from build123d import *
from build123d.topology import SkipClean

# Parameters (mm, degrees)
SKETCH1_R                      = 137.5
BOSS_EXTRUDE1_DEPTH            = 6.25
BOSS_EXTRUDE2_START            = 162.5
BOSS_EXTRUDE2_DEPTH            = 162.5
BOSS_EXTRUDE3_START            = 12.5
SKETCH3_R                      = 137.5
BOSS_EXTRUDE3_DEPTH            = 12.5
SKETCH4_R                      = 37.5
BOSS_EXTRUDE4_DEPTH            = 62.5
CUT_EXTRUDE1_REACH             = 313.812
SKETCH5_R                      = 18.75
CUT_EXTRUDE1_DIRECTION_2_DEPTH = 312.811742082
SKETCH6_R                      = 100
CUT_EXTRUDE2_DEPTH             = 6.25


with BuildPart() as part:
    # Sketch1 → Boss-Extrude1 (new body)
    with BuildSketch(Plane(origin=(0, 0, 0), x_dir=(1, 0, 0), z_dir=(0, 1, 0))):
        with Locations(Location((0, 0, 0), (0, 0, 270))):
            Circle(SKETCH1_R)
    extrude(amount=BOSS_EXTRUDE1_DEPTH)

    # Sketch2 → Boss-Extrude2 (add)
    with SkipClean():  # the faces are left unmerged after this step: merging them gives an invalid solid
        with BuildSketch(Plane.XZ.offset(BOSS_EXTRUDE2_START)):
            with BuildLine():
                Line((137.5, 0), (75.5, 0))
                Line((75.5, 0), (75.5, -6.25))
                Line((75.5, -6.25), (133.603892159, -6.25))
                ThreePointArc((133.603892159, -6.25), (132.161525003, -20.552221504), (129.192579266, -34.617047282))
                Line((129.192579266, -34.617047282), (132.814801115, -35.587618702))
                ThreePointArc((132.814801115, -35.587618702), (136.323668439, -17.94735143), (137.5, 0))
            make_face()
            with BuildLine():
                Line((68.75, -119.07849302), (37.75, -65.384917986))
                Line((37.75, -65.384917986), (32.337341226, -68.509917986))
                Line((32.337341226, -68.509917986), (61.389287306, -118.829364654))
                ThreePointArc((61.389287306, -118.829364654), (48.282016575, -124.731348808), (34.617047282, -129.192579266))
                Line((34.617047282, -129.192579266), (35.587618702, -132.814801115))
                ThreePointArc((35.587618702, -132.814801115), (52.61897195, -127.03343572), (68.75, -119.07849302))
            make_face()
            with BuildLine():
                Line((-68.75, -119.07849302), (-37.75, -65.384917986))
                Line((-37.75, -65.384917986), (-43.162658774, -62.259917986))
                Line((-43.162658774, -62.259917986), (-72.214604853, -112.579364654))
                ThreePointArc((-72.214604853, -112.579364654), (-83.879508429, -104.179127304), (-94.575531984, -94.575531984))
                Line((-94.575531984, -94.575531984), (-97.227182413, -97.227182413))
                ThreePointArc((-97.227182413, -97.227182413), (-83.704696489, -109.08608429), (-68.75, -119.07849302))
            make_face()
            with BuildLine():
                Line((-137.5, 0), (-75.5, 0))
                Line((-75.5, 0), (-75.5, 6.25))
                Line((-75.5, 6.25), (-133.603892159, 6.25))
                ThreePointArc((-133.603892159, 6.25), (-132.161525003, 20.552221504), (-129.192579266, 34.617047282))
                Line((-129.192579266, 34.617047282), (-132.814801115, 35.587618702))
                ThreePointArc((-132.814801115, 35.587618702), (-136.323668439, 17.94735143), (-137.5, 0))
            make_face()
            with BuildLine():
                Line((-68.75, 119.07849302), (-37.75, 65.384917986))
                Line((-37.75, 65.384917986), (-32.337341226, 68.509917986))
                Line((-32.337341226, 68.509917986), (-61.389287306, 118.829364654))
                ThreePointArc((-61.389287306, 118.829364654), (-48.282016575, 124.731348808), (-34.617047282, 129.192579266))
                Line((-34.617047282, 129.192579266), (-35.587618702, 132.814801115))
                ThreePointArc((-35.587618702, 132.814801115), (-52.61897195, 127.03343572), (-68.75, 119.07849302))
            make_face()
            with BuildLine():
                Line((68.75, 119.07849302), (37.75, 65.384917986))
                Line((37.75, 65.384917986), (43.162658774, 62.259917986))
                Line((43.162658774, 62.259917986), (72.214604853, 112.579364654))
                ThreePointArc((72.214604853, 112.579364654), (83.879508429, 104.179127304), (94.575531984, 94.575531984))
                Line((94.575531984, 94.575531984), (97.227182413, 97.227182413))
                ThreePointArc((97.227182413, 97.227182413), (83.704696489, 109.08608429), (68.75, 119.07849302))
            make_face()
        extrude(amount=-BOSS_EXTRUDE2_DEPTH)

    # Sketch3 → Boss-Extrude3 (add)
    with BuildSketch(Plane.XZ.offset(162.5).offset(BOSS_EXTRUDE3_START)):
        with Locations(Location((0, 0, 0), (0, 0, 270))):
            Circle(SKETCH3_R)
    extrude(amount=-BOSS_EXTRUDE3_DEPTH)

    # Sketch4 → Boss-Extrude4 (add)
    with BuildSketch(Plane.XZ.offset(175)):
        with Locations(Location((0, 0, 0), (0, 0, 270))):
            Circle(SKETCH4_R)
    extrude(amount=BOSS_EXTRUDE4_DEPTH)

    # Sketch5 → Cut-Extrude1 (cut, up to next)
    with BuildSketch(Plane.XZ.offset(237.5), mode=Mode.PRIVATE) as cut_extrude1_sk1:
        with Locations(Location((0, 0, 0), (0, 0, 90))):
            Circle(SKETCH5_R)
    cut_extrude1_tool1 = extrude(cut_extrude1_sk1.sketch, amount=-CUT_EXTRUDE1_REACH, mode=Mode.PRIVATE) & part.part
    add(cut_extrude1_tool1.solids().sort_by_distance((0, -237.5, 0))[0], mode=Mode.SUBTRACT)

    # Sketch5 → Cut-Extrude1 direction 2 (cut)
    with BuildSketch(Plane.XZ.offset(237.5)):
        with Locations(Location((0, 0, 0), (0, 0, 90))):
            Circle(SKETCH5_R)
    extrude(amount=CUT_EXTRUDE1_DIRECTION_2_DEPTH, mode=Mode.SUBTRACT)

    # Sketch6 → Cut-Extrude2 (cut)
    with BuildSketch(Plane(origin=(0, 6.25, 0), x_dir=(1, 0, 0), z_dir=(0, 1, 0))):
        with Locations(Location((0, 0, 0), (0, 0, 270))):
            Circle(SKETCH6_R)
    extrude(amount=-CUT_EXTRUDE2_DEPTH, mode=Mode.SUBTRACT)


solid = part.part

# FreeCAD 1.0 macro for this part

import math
import FreeCAD as App
import Part
import Sketcher
Q = App.Units.Quantity

doc = App.newDocument("Part")
body = doc.addObject("PartDesign::Body", "Body")

# Sketch on XZ plane
sketch1 = body.newObject("Sketcher::SketchObject", "Sketch")
sketch1.AttachmentSupport = (doc.getObject("XZ_Plane"), [""])
sketch1.MapMode = "FlatFace"
sketch1.addGeometry(Part.Circle(App.Vector(0, 0, 0), App.Vector(0, 0, 1), 137.5), False)
sketch1.addConstraint(Sketcher.Constraint("Coincident", 0, 3, -1, 1))
sketch1.addConstraint(Sketcher.Constraint("Diameter", 0, 275.0))
pad1 = body.newObject("PartDesign::Pad", "Pad")
pad1.Profile = sketch1
pad1.Length = 6.25
pad1.Reversed = True

# Sketch on XZ plane
sketch2 = body.newObject("Sketcher::SketchObject", "Sketch001")
sketch2.AttachmentSupport = (doc.getObject("XZ_Plane"), [""])
sketch2.MapMode = "FlatFace"
sketch2.AttachmentOffset = App.Placement(App.Vector(0, 0, 162.5), App.Rotation())
sketch2.addGeometry(Part.LineSegment(App.Vector(137.5, 0, 0), App.Vector(75.5, 0, 0)), False)
sketch2.addGeometry(Part.LineSegment(App.Vector(75.5, 0, 0), App.Vector(75.5, -6.25, 0)), False)
sketch2.addGeometry(Part.LineSegment(App.Vector(75.5, -6.25, 0), App.Vector(133.603892, -6.25, 0)), False)
sketch2.addGeometry(Part.ArcOfCircle(Part.Circle(App.Vector(0, 0, 0), App.Vector(0, 0, 1), 133.75), math.radians(-15), math.radians(-2.678348)), False)
sketch2.addGeometry(Part.LineSegment(App.Vector(129.192579, -34.617047, 0), App.Vector(132.814801, -35.587619, 0)), False)
sketch2.addGeometry(Part.ArcOfCircle(Part.Circle(App.Vector(0, 0, 0), App.Vector(0, 0, 1), 137.5), math.radians(-15), math.radians(0)), False)
sketch2.addGeometry(Part.LineSegment(App.Vector(68.75, -119.078493, 0), App.Vector(37.75, -65.384918, 0)), False)
sketch2.addGeometry(Part.LineSegment(App.Vector(37.75, -65.384918, 0), App.Vector(32.337341, -68.509918, 0)), False)
sketch2.addGeometry(Part.LineSegment(App.Vector(32.337341, -68.509918, 0), App.Vector(61.389287, -118.829365, 0)), False)
sketch2.addGeometry(Part.ArcOfCircle(Part.Circle(App.Vector(0, 0, 0), App.Vector(0, 0, 1), 133.75), math.radians(-75), math.radians(-62.678348)), False)
sketch2.addGeometry(Part.LineSegment(App.Vector(34.617047, -129.192579, 0), App.Vector(35.587619, -132.814801, 0)), False)
sketch2.addGeometry(Part.ArcOfCircle(Part.Circle(App.Vector(0, 0, 0), App.Vector(0, 0, 1), 137.5), math.radians(-75), math.radians(-60)), False)
sketch2.addGeometry(Part.LineSegment(App.Vector(-68.75, -119.078493, 0), App.Vector(-37.75, -65.384918, 0)), False)
sketch2.addGeometry(Part.LineSegment(App.Vector(-37.75, -65.384918, 0), App.Vector(-43.162659, -62.259918, 0)), False)
sketch2.addGeometry(Part.LineSegment(App.Vector(-43.162659, -62.259918, 0), App.Vector(-72.214605, -112.579365, 0)), False)
sketch2.addGeometry(Part.ArcOfCircle(Part.Circle(App.Vector(0, 0, 0), App.Vector(0, 0, 1), 133.75), math.radians(-135), math.radians(-122.678348)), False)
sketch2.addGeometry(Part.LineSegment(App.Vector(-94.575532, -94.575532, 0), App.Vector(-97.227182, -97.227182, 0)), False)
sketch2.addGeometry(Part.ArcOfCircle(Part.Circle(App.Vector(0, 0, 0), App.Vector(0, 0, 1), 137.5), math.radians(-135), math.radians(-120)), False)
sketch2.addGeometry(Part.LineSegment(App.Vector(-137.5, 0, 0), App.Vector(-75.5, 0, 0)), False)
sketch2.addGeometry(Part.LineSegment(App.Vector(-75.5, 0, 0), App.Vector(-75.5, 6.25, 0)), False)
sketch2.addGeometry(Part.LineSegment(App.Vector(-75.5, 6.25, 0), App.Vector(-133.603892, 6.25, 0)), False)
sketch2.addGeometry(Part.ArcOfCircle(Part.Circle(App.Vector(0, 0, 0), App.Vector(0, 0, 1), 133.75), math.radians(165), math.radians(177.321652)), False)
sketch2.addGeometry(Part.LineSegment(App.Vector(-129.192579, 34.617047, 0), App.Vector(-132.814801, 35.587619, 0)), False)
sketch2.addGeometry(Part.ArcOfCircle(Part.Circle(App.Vector(0, 0, 0), App.Vector(0, 0, 1), 137.5), math.radians(165), math.radians(180)), False)
sketch2.addGeometry(Part.LineSegment(App.Vector(-68.75, 119.078493, 0), App.Vector(-37.75, 65.384918, 0)), False)
sketch2.addGeometry(Part.LineSegment(App.Vector(-37.75, 65.384918, 0), App.Vector(-32.337341, 68.509918, 0)), False)
sketch2.addGeometry(Part.LineSegment(App.Vector(-32.337341, 68.509918, 0), App.Vector(-61.389287, 118.829365, 0)), False)
sketch2.addGeometry(Part.ArcOfCircle(Part.Circle(App.Vector(0, 0, 0), App.Vector(0, 0, 1), 133.75), math.radians(105), math.radians(117.321652)), False)
sketch2.addGeometry(Part.LineSegment(App.Vector(-34.617047, 129.192579, 0), App.Vector(-35.587619, 132.814801, 0)), False)
sketch2.addGeometry(Part.ArcOfCircle(Part.Circle(App.Vector(0, 0, 0), App.Vector(0, 0, 1), 137.5), math.radians(105), math.radians(120)), False)
sketch2.addGeometry(Part.LineSegment(App.Vector(68.75, 119.078493, 0), App.Vector(37.75, 65.384918, 0)), False)
sketch2.addGeometry(Part.LineSegment(App.Vector(37.75, 65.384918, 0), App.Vector(43.162659, 62.259918, 0)), False)
sketch2.addGeometry(Part.LineSegment(App.Vector(43.162659, 62.259918, 0), App.Vector(72.214605, 112.579365, 0)), False)
sketch2.addGeometry(Part.ArcOfCircle(Part.Circle(App.Vector(0, 0, 0), App.Vector(0, 0, 1), 133.75), math.radians(45), math.radians(57.321652)), False)
sketch2.addGeometry(Part.LineSegment(App.Vector(94.575532, 94.575532, 0), App.Vector(97.227182, 97.227182, 0)), False)
sketch2.addGeometry(Part.ArcOfCircle(Part.Circle(App.Vector(0, 0, 0), App.Vector(0, 0, 1), 137.5), math.radians(45), math.radians(60)), False)
sketch2.addConstraint(Sketcher.Constraint("Coincident", 0, 2, 1, 1))
sketch2.addConstraint(Sketcher.Constraint("Coincident", 1, 2, 2, 1))
sketch2.addConstraint(Sketcher.Constraint("Coincident", 2, 2, 3, 2))
sketch2.addConstraint(Sketcher.Constraint("Coincident", 3, 1, 4, 1))
sketch2.addConstraint(Sketcher.Constraint("Coincident", 4, 2, 5, 1))
sketch2.addConstraint(Sketcher.Constraint("Coincident", 5, 2, 0, 1))
sketch2.addConstraint(Sketcher.Constraint("Coincident", 6, 2, 7, 1))
sketch2.addConstraint(Sketcher.Constraint("Coincident", 7, 2, 8, 1))
sketch2.addConstraint(Sketcher.Constraint("Coincident", 8, 2, 9, 2))
sketch2.addConstraint(Sketcher.Constraint("Coincident", 9, 1, 10, 1))
sketch2.addConstraint(Sketcher.Constraint("Coincident", 10, 2, 11, 1))
sketch2.addConstraint(Sketcher.Constraint("Coincident", 11, 2, 6, 1))
sketch2.addConstraint(Sketcher.Constraint("Coincident", 12, 2, 13, 1))
sketch2.addConstraint(Sketcher.Constraint("Coincident", 13, 2, 14, 1))
sketch2.addConstraint(Sketcher.Constraint("Coincident", 14, 2, 15, 2))
sketch2.addConstraint(Sketcher.Constraint("Coincident", 15, 1, 16, 1))
sketch2.addConstraint(Sketcher.Constraint("Coincident", 16, 2, 17, 1))
sketch2.addConstraint(Sketcher.Constraint("Coincident", 17, 2, 12, 1))
sketch2.addConstraint(Sketcher.Constraint("Coincident", 18, 2, 19, 1))
sketch2.addConstraint(Sketcher.Constraint("Coincident", 19, 2, 20, 1))
sketch2.addConstraint(Sketcher.Constraint("Coincident", 20, 2, 21, 2))
sketch2.addConstraint(Sketcher.Constraint("Coincident", 21, 1, 22, 1))
sketch2.addConstraint(Sketcher.Constraint("Coincident", 22, 2, 23, 1))
sketch2.addConstraint(Sketcher.Constraint("Coincident", 23, 2, 18, 1))
sketch2.addConstraint(Sketcher.Constraint("Coincident", 24, 2, 25, 1))
sketch2.addConstraint(Sketcher.Constraint("Coincident", 25, 2, 26, 1))
sketch2.addConstraint(Sketcher.Constraint("Coincident", 26, 2, 27, 2))
sketch2.addConstraint(Sketcher.Constraint("Coincident", 27, 1, 28, 1))
sketch2.addConstraint(Sketcher.Constraint("Coincident", 28, 2, 29, 1))
sketch2.addConstraint(Sketcher.Constraint("Coincident", 29, 2, 24, 1))
sketch2.addConstraint(Sketcher.Constraint("Coincident", 30, 2, 31, 1))
sketch2.addConstraint(Sketcher.Constraint("Coincident", 31, 2, 32, 1))
sketch2.addConstraint(Sketcher.Constraint("Coincident", 32, 2, 33, 2))
sketch2.addConstraint(Sketcher.Constraint("Coincident", 33, 1, 34, 1))
sketch2.addConstraint(Sketcher.Constraint("Coincident", 34, 2, 35, 1))
sketch2.addConstraint(Sketcher.Constraint("Coincident", 35, 2, 30, 1))
sketch2.addConstraint(Sketcher.Constraint("Horizontal", 0))
sketch2.addConstraint(Sketcher.Constraint("Vertical", 1))
sketch2.addConstraint(Sketcher.Constraint("Horizontal", 2))
sketch2.addConstraint(Sketcher.Constraint("Horizontal", 18))
sketch2.addConstraint(Sketcher.Constraint("Vertical", 19))
sketch2.addConstraint(Sketcher.Constraint("Horizontal", 20))
sketch2.addConstraint(Sketcher.Constraint("Coincident", 3, 3, -1, 1))
sketch2.addConstraint(Sketcher.Constraint("Coincident", 5, 3, -1, 1))
sketch2.addConstraint(Sketcher.Constraint("Coincident", 9, 3, -1, 1))
sketch2.addConstraint(Sketcher.Constraint("Coincident", 11, 3, -1, 1))
sketch2.addConstraint(Sketcher.Constraint("Coincident", 15, 3, -1, 1))
sketch2.addConstraint(Sketcher.Constraint("Coincident", 17, 3, -1, 1))
sketch2.addConstraint(Sketcher.Constraint("Coincident", 21, 3, -1, 1))
sketch2.addConstraint(Sketcher.Constraint("Coincident", 23, 3, -1, 1))
sketch2.addConstraint(Sketcher.Constraint("Coincident", 27, 3, -1, 1))
sketch2.addConstraint(Sketcher.Constraint("Coincident", 29, 3, -1, 1))
sketch2.addConstraint(Sketcher.Constraint("Coincident", 33, 3, -1, 1))
sketch2.addConstraint(Sketcher.Constraint("Coincident", 35, 3, -1, 1))
sketch2.addConstraint(Sketcher.Constraint("Equal", 3, 9))
sketch2.addConstraint(Sketcher.Constraint("Equal", 5, 11))
sketch2.addConstraint(Sketcher.Constraint("Equal", 9, 15))
sketch2.addConstraint(Sketcher.Constraint("Equal", 11, 17))
sketch2.addConstraint(Sketcher.Constraint("Equal", 15, 21))
sketch2.addConstraint(Sketcher.Constraint("Equal", 17, 23))
sketch2.addConstraint(Sketcher.Constraint("Equal", 21, 27))
sketch2.addConstraint(Sketcher.Constraint("Equal", 23, 29))
sketch2.addConstraint(Sketcher.Constraint("Equal", 27, 33))
sketch2.addConstraint(Sketcher.Constraint("Equal", 29, 35))
sketch2.addConstraint(Sketcher.Constraint("Symmetric", 0, 2, 18, 2, -1, 1))
sketch2.addConstraint(Sketcher.Constraint("Symmetric", 6, 2, 24, 2, -1, 1))
sketch2.addConstraint(Sketcher.Constraint("Symmetric", 7, 2, 25, 2, -1, 1))
sketch2.addConstraint(Sketcher.Constraint("Symmetric", 12, 2, 30, 2, -1, 1))
sketch2.addConstraint(Sketcher.Constraint("Symmetric", 13, 2, 31, 2, -1, 1))
sketch2.addConstraint(Sketcher.Constraint("Symmetric", 6, 2, 12, 2, -2))
sketch2.addConstraint(Sketcher.Constraint("PointOnObject", 0, 2, -1))
sketch2.addConstraint(Sketcher.Constraint("Perpendicular", 6, 7))
sketch2.addConstraint(Sketcher.Constraint("Perpendicular", 7, 8))
sketch2.addConstraint(Sketcher.Constraint("Perpendicular", 12, 13))
sketch2.addConstraint(Sketcher.Constraint("Perpendicular", 13, 14))
sketch2.addConstraint(Sketcher.Constraint("Parallel", 4, 22))
sketch2.addConstraint(Sketcher.Constraint("Parallel", 8, 24))
sketch2.addConstraint(Sketcher.Constraint("Perpendicular", 25, 26))
sketch2.addConstraint(Sketcher.Constraint("Parallel", 10, 28))
sketch2.addConstraint(Sketcher.Constraint("Parallel", 14, 30))
sketch2.addConstraint(Sketcher.Constraint("Perpendicular", 31, 32))
sketch2.addConstraint(Sketcher.Constraint("Parallel", 16, 34))
sketch2.addConstraint(Sketcher.Constraint("Horizontal", 11, 2, 17, 2))
sketch2.addConstraint(Sketcher.Constraint("Equal", 2, 20))
sketch2.addConstraint(Sketcher.Constraint("Equal", 7, 13))
sketch2.addConstraint(Sketcher.Constraint("Equal", 8, 14))
sketch2.addConstraint(Sketcher.Constraint("Radius", 5, 137.5))
sketch2.addConstraint(Sketcher.Constraint("DistanceX", 0, 2, 0, 1, 62.0))
sketch2.addConstraint(Sketcher.Constraint("Angle", 4, Q("-15 deg")))
sketch2.addConstraint(Sketcher.Constraint("Angle", 6, Q("120 deg")))
sketch2.addConstraint(Sketcher.Constraint("Angle", 10, Q("-75 deg")))
sketch2.addConstraint(Sketcher.Constraint("Angle", 16, Q("-135 deg")))
sketch2.addConstraint(Sketcher.Constraint("Radius", 3, 133.75))
sketch2.addConstraint(Sketcher.Constraint("Distance", 6, 62.0))
sketch2.addConstraint(Sketcher.Constraint("DistanceY", 1, 2, 1, 1, 6.25))
sketch2.addConstraint(Sketcher.Constraint("Distance", 7, 6.25))
sketch2.addConstraint(Sketcher.Constraint("DistanceX", -1, 1, 4, 2, 132.814801))
sketch2.addConstraint(Sketcher.Constraint("DistanceY", 10, 2, -1, 1, 132.814801))
sketch2.addConstraint(Sketcher.Constraint("DistanceX", 22, 2, -1, 1, 132.814801))
sketch2.addConstraint(Sketcher.Constraint("DistanceY", -1, 1, 28, 2, 132.814801))
sketch2.addConstraint(Sketcher.Constraint("DistanceX", 15, 1, -1, 1, 94.575532))
sketch2.addConstraint(Sketcher.Constraint("DistanceX", -1, 1, 33, 1, 94.575532))
pad2 = body.newObject("PartDesign::Pad", "Pad001")
pad2.Profile = sketch2
pad2.Length = 162.5
pad2.Reversed = True

# Sketch on XZ plane
sketch3 = body.newObject("Sketcher::SketchObject", "Sketch002")
sketch3.AttachmentSupport = (doc.getObject("XZ_Plane"), [""])
sketch3.MapMode = "FlatFace"
sketch3.AttachmentOffset = App.Placement(App.Vector(0, 0, 175), App.Rotation())
sketch3.addGeometry(Part.Circle(App.Vector(0, 0, 0), App.Vector(0, 0, 1), 137.5), False)
sketch3.addConstraint(Sketcher.Constraint("Coincident", 0, 3, -1, 1))
sketch3.addConstraint(Sketcher.Constraint("Diameter", 0, 275.0))
pad3 = body.newObject("PartDesign::Pad", "Pad002")
pad3.Profile = sketch3
pad3.Length = 12.5
pad3.Reversed = True

# Sketch on XZ plane
sketch4 = body.newObject("Sketcher::SketchObject", "Sketch003")
sketch4.AttachmentSupport = (doc.getObject("XZ_Plane"), [""])
sketch4.MapMode = "FlatFace"
sketch4.AttachmentOffset = App.Placement(App.Vector(0, 0, 175), App.Rotation())
sketch4.addGeometry(Part.Circle(App.Vector(0, 0, 0), App.Vector(0, 0, 1), 37.5), False)
sketch4.addConstraint(Sketcher.Constraint("Coincident", 0, 3, -1, 1))
sketch4.addConstraint(Sketcher.Constraint("Diameter", 0, 75.0))
pad4 = body.newObject("PartDesign::Pad", "Pad003")
pad4.Profile = sketch4
pad4.Length = 62.5

# Sketch on XZ plane
sketch5 = body.newObject("Sketcher::SketchObject", "Sketch004")
sketch5.AttachmentSupport = (doc.getObject("XZ_Plane"), [""])
sketch5.MapMode = "FlatFace"
sketch5.AttachmentOffset = App.Placement(App.Vector(0, 0, 237.5), App.Rotation())
sketch5.addGeometry(Part.Circle(App.Vector(0, 0, 0), App.Vector(0, 0, 1), 18.75), False)
sketch5.addConstraint(Sketcher.Constraint("Coincident", 0, 3, -1, 1))
sketch5.addConstraint(Sketcher.Constraint("Diameter", 0, 37.5))
pocket1 = body.newObject("PartDesign::Pocket", "Pocket")
pocket1.Profile = sketch5
pocket1.Type = "UpToFirst"

# Sketch on XZ plane
sketch6 = body.newObject("Sketcher::SketchObject", "Sketch005")
sketch6.AttachmentSupport = (doc.getObject("XZ_Plane"), [""])
sketch6.MapMode = "FlatFace"
sketch6.AttachmentOffset = App.Placement(App.Vector(0, 0, 237.5), App.Rotation())
sketch6.addGeometry(Part.Circle(App.Vector(0, 0, 0), App.Vector(0, 0, 1), 18.75), False)
sketch6.addConstraint(Sketcher.Constraint("Coincident", 0, 3, -1, 1))
sketch6.addConstraint(Sketcher.Constraint("Diameter", 0, 37.5))
pocket2 = body.newObject("PartDesign::Pocket", "Pocket001")
pocket2.Profile = sketch6
pocket2.Length = 312.811742
pocket2.Reversed = True

# Sketch on XZ plane
sketch7 = body.newObject("Sketcher::SketchObject", "Sketch006")
sketch7.AttachmentSupport = (doc.getObject("XZ_Plane"), [""])
sketch7.MapMode = "FlatFace"
sketch7.AttachmentOffset = App.Placement(App.Vector(0, 0, -6.25), App.Rotation())
sketch7.addGeometry(Part.Circle(App.Vector(0, 0, 0), App.Vector(0, 0, 1), 100), False)
sketch7.addConstraint(Sketcher.Constraint("Coincident", 0, 3, -1, 1))
sketch7.addConstraint(Sketcher.Constraint("Diameter", 0, 200.0))
pocket3 = body.newObject("PartDesign::Pocket", "Pocket002")
pocket3.Profile = sketch7
pocket3.Length = 6.25
pocket3.Reversed = True

doc.recompute()
